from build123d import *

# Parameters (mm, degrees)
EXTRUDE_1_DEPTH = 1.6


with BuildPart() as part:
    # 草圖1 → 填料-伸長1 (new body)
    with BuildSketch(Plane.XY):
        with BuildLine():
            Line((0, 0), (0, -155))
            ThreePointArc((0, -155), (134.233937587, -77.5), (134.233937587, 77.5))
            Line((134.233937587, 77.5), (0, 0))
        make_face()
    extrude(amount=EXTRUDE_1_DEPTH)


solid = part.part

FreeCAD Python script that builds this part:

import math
import FreeCAD as App
import Part
import Sketcher

V = App.Vector
Q = App.Units.Quantity

doc = App.newDocument("Part")
params = doc.addObject("Spreadsheet::Sheet", "Params")
for row, (alias, value) in enumerate([
    ("sketch1_radius", "155 mm"),
    ("pad1_length", "1.6 mm"),
], start=1):
    params.set(f"A{row}", alias)
    params.set(f"B{row}", "=" + value)
    params.setAlias(f"B{row}", alias)

body = doc.addObject("PartDesign::Body", "Body")

sketch1 = body.newObject("Sketcher::SketchObject", "Sketch")
sketch1.AttachmentSupport = (doc.getObject("XY_Plane"), [""])
sketch1.MapMode = "FlatFace"
sketch1.addGeometry([
    Part.LineSegment(V(0, 0, 0), V(0, -155, 0)),
    Part.ArcOfCircle(Part.Circle(V(0, 0, 0), V(0, 0, 1), 155), math.radians(-90), math.radians(30)),
    Part.LineSegment(V(134, 78, 0), V(0, 0, 0)),
], False)
sketch1.addConstraint([
    Sketcher.Constraint("Coincident", 0, 2, 1, 1),
    Sketcher.Constraint("Coincident", 1, 2, 2, 1),
    Sketcher.Constraint("Coincident", 2, 2, 0, 1),
    Sketcher.Constraint("Vertical", 0),
    Sketcher.Constraint("Coincident", 1, 3, -1, 1),
    Sketcher.Constraint("Coincident", 2, 2, -1, 1),
    Sketcher.Constraint("Radius", 1, 155.0),
    Sketcher.Constraint("Angle", 2, Q("-150 deg")),
])
sketch1.setExpression("Constraints[6]", "Params.sketch1_radius")
pad1 = body.newObject("PartDesign::Pad", "Pad")
pad1.Profile = sketch1
pad1.setExpression("Length", "Params.pad1_length")

doc.recompute()
